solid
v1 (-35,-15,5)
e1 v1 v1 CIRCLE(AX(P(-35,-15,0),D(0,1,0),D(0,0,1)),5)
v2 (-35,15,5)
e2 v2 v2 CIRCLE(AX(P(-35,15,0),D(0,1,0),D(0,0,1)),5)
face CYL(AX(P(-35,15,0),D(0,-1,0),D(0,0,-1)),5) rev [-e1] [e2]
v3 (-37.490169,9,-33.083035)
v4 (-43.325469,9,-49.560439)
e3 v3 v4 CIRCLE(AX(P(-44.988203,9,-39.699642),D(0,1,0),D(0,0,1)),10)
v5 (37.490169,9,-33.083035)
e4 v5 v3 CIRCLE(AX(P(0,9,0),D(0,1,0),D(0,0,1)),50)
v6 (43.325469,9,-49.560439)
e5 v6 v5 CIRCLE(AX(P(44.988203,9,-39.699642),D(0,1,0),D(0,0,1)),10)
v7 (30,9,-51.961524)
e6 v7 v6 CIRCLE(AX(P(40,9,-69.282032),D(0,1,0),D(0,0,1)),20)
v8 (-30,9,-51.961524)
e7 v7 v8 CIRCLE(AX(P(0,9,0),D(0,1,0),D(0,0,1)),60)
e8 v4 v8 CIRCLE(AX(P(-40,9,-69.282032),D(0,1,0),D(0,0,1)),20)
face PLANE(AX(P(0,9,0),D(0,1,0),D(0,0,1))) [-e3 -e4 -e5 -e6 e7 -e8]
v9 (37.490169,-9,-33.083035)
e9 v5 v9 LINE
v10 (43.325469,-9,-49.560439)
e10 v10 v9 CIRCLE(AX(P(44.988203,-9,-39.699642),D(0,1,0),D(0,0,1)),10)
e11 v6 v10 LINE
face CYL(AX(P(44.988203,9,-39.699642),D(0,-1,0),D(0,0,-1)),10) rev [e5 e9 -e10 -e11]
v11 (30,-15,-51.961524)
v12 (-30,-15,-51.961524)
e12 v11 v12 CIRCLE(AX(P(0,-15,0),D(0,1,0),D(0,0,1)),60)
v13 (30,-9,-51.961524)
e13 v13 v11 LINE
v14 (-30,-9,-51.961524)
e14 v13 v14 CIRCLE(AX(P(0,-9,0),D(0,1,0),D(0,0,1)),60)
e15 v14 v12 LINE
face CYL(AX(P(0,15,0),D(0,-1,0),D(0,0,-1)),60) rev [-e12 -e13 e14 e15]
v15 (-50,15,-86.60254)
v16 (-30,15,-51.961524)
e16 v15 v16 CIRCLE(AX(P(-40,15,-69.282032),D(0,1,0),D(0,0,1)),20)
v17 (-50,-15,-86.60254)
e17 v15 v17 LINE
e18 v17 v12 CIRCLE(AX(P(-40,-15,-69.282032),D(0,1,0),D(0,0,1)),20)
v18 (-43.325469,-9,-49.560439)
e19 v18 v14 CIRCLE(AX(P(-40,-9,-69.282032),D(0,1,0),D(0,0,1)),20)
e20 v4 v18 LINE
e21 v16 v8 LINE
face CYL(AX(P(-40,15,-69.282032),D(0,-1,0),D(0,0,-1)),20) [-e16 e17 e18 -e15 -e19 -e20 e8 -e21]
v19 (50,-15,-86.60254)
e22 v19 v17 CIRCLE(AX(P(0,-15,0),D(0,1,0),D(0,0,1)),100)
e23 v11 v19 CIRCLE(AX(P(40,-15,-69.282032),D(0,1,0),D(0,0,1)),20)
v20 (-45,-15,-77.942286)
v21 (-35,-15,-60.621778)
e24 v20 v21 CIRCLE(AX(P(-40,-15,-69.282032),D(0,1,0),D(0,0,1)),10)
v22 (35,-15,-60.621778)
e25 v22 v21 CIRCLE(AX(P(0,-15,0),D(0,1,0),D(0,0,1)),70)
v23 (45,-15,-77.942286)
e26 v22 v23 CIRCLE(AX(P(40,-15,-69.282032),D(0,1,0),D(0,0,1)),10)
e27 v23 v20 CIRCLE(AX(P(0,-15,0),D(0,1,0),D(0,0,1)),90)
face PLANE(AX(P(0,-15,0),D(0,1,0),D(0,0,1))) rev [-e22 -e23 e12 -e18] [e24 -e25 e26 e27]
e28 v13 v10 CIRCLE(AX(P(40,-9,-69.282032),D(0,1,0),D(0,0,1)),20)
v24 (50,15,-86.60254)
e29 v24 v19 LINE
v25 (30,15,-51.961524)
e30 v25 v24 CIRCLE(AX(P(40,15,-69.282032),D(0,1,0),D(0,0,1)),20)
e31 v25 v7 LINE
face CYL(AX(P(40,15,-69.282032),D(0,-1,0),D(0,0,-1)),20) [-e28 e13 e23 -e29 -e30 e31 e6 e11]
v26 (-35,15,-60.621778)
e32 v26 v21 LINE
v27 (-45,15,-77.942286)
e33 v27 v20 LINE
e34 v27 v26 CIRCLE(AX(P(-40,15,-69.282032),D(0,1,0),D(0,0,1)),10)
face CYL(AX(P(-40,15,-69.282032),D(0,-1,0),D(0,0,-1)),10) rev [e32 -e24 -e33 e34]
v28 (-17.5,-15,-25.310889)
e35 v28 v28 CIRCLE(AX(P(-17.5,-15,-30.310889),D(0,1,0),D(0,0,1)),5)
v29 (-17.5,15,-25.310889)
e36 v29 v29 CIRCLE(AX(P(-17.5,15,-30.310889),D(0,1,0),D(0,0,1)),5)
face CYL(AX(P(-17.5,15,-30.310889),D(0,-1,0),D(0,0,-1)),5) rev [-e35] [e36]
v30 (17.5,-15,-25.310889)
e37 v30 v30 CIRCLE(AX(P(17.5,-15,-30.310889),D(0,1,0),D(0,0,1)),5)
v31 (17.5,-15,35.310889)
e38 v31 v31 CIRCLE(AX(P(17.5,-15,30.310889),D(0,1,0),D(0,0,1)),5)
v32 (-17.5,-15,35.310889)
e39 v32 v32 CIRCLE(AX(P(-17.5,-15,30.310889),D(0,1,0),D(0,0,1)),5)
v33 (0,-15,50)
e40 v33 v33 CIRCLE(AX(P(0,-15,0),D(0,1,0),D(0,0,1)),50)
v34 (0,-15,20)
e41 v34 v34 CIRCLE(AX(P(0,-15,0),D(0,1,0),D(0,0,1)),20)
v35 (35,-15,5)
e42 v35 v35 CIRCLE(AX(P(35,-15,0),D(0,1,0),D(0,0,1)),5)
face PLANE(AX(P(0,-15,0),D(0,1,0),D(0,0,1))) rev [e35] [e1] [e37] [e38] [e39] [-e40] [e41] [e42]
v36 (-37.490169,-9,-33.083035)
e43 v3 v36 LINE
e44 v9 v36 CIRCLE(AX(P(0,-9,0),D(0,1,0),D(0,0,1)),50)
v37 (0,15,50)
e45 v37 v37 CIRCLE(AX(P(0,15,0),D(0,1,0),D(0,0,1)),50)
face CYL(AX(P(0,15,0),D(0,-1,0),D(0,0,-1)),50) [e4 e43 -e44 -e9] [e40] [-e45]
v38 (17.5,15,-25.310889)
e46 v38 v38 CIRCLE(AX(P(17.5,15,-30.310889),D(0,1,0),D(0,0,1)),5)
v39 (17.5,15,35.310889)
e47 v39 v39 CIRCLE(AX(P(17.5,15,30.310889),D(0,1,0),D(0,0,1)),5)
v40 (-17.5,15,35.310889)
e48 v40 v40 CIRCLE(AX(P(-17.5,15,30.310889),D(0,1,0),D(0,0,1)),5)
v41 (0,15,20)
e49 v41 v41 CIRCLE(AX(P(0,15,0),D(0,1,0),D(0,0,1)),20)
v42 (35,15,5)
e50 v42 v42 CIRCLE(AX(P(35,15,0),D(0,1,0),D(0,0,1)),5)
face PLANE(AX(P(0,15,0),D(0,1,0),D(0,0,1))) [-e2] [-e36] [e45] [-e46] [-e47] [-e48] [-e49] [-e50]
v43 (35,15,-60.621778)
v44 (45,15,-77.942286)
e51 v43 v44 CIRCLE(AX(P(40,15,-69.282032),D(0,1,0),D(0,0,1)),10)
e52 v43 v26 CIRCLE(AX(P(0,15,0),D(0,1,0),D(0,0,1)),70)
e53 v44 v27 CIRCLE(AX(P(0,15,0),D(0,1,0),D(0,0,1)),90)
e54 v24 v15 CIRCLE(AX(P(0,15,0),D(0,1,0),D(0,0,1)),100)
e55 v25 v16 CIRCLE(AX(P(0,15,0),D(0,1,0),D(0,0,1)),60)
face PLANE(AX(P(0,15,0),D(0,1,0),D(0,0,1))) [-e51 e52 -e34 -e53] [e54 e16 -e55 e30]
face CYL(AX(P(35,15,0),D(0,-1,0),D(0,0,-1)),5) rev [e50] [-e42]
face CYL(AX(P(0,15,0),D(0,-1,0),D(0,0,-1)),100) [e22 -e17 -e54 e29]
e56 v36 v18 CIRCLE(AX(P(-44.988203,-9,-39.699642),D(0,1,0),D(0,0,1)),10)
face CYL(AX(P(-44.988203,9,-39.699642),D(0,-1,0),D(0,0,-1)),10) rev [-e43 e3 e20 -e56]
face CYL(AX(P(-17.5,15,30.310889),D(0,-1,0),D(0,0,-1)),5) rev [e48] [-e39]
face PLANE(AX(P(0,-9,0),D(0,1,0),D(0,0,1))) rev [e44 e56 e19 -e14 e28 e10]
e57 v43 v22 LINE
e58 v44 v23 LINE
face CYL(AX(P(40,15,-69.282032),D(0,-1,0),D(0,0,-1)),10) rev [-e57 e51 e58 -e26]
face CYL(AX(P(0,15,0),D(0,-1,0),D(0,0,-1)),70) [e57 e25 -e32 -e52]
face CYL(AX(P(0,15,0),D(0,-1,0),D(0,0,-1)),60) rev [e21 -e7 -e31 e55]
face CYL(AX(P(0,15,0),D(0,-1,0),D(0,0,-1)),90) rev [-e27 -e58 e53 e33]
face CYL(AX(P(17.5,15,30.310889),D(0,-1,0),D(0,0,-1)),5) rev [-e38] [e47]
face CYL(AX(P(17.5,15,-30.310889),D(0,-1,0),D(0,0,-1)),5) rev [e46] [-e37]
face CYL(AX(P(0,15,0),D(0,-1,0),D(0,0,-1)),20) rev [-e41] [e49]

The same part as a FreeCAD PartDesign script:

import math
import FreeCAD as App
import Part
import Sketcher

V = App.Vector

doc = App.newDocument("Part")
body = doc.addObject("PartDesign::Body", "Body")

# Sketch on XZ plane
sketch1 = doc.addObject("Sketcher::SketchObject", "Sketch")
body.addObject(sketch1)
sketch1.AttachmentSupport = (doc.XZ_Plane, [""])
sketch1.MapMode = "FlatFace"
sketch1.addGeometry(Part.ArcOfCircle(Part.Circle(V(0, 0, 0), V(0, 0, 1), 60), math.radians(-120), math.radians(-60)), False)
sketch1.addGeometry(Part.ArcOfCircle(Part.Circle(V(40, -69, 0), V(0, 0, 1), 20), math.radians(-60), math.radians(120)), False)
sketch1.addGeometry(Part.ArcOfCircle(Part.Circle(V(0, 0, 0), V(0, 0, 1), 100), math.radians(-120), math.radians(-60)), False)
sketch1.addGeometry(Part.ArcOfCircle(Part.Circle(V(-40, -69, 0), V(0, 0, 1), 20), math.radians(60), math.radians(240)), False)
sketch1.addGeometry(Part.ArcOfCircle(Part.Circle(V(0, 0, 0), V(0, 0, 1), 90), math.radians(-120), math.radians(-60)), False)
sketch1.addGeometry(Part.ArcOfCircle(Part.Circle(V(40, -69, 0), V(0, 0, 1), 10), math.radians(-60), math.radians(120)), False)
sketch1.addGeometry(Part.ArcOfCircle(Part.Circle(V(0, 0, 0), V(0, 0, 1), 70), math.radians(-120), math.radians(-60)), False)
sketch1.addGeometry(Part.ArcOfCircle(Part.Circle(V(-40, -69, 0), V(0, 0, 1), 10), math.radians(60), math.radians(240)), False)
sketch1.addConstraint(Sketcher.Constraint("Tangent", 0, 2, 1, 2))
sketch1.addConstraint(Sketcher.Constraint("Tangent", 1, 1, 2, 2))
sketch1.addConstraint(Sketcher.Constraint("Tangent", 2, 1, 3, 2))
sketch1.addConstraint(Sketcher.Constraint("Tangent", 3, 1, 0, 1))
sketch1.addConstraint(Sketcher.Constraint("Tangent", 4, 2, 5, 1))
sketch1.addConstraint(Sketcher.Constraint("Tangent", 5, 2, 6, 2))
sketch1.addConstraint(Sketcher.Constraint("Tangent", 6, 1, 7, 1))
sketch1.addConstraint(Sketcher.Constraint("Tangent", 7, 2, 4, 1))
sketch1.addConstraint(Sketcher.Constraint("Coincident", 0, 3, -1, 1))
sketch1.addConstraint(Sketcher.Constraint("Coincident", 2, 3, -1, 1))
sketch1.addConstraint(Sketcher.Constraint("Coincident", 4, 3, -1, 1))
sketch1.addConstraint(Sketcher.Constraint("Coincident", 6, 3, -1, 1))
sketch1.addConstraint(Sketcher.Constraint("Coincident", 5, 3, 1, 3))
sketch1.addConstraint(Sketcher.Constraint("Horizontal", 1, 3, 3, 3))
sketch1.addConstraint(Sketcher.Constraint("Horizontal", 5, 3, 7, 3))
sketch1.addConstraint(Sketcher.Constraint("Radius", 0, 60.0))
sketch1.addConstraint(Sketcher.Constraint("Radius", 1, 20.0))
sketch1.addConstraint(Sketcher.Constraint("Radius", 4, 90.0))
sketch1.addConstraint(Sketcher.Constraint("DistanceX", -1, 1, 1, 3, 40.0))
pad1 = doc.addObject("PartDesign::Pad", "Pad")
body.addObject(pad1)
pad1.Profile = sketch1
pad1.Length = 30
pad1.Midplane = True
body2 = doc.addObject("PartDesign::Body", "Body001")

# Sketch on XZ plane
sketch2 = doc.addObject("Sketcher::SketchObject", "Sketch001")
body2.addObject(sketch2)
sketch2.AttachmentSupport = (doc.getObject("XZ_Plane001"), [""])
sketch2.MapMode = "FlatFace"
sketch2.addGeometry(Part.Circle(V(0, 0, 0), V(0, 0, 1), 50), False)
sketch2.addGeometry(Part.Circle(V(-18, -30, 0), V(0, 0, 1), 5), False)
sketch2.addGeometry(Part.Circle(V(-35, 0, 0), V(0, 0, 1), 5), False)
sketch2.addGeometry(Part.Circle(V(-18, 30, 0), V(0, 0, 1), 5), False)
sketch2.addGeometry(Part.Circle(V(18, -30, 0), V(0, 0, 1), 5), False)
sketch2.addGeometry(Part.Circle(V(35, 0, 0), V(0, 0, 1), 5), False)
sketch2.addGeometry(Part.Circle(V(0, 0, 0), V(0, 0, 1), 20), False)
sketch2.addGeometry(Part.Circle(V(18, 30, 0), V(0, 0, 1), 5), False)
sketch2.addConstraint(Sketcher.Constraint("Coincident", 0, 3, -1, 1))
sketch2.addConstraint(Sketcher.Constraint("Coincident", 6, 3, -1, 1))
sketch2.addConstraint(Sketcher.Constraint("Equal", 1, 2))
sketch2.addConstraint(Sketcher.Constraint("Equal", 2, 3))
sketch2.addConstraint(Sketcher.Constraint("Equal", 3, 4))
sketch2.addConstraint(Sketcher.Constraint("Equal", 4, 5))
sketch2.addConstraint(Sketcher.Constraint("Equal", 5, 7))
sketch2.addConstraint(Sketcher.Constraint("Symmetric", 3, 3, 4, 3, -1, 1))
sketch2.addConstraint(Sketcher.Constraint("Symmetric", 2, 3, 5, 3, -1, 1))
sketch2.addConstraint(Sketcher.Constraint("Symmetric", 1, 3, 7, 3, -1, 1))
sketch2.addConstraint(Sketcher.Constraint("Symmetric", 1, 3, 4, 3, -2))
sketch2.addConstraint(Sketcher.Constraint("PointOnObject", 2, 3, -1))
sketch2.addConstraint(Sketcher.Constraint("Diameter", 0, 100.0))
sketch2.addConstraint(Sketcher.Constraint("Diameter", 1, 10.0))
sketch2.addConstraint(Sketcher.Constraint("Diameter", 6, 40.0))
sketch2.addConstraint(Sketcher.Constraint("DistanceX", 2, 3, -1, 1, 35.0))
sketch2.addConstraint(Sketcher.Constraint("DistanceX", 1, 3, 4, 3, 35.0))
sketch2.addConstraint(Sketcher.Constraint("DistanceY", 1, 3, -1, 1, 30.310889))
pad2 = doc.addObject("PartDesign::Pad", "Pad001")
body2.addObject(pad2)
pad2.Profile = sketch2
pad2.Length = 30
pad2.Midplane = True
body.AllowCompound = True
doc.recompute()

boolean = doc.addObject("PartDesign::Boolean", "Boolean")
body.addObject(boolean)
boolean.Type = "Fuse"
boolean.addObjects([body2])

# Sketch on XZ plane
sketch3 = doc.addObject("Sketcher::SketchObject", "Sketch002")
body.addObject(sketch3)
sketch3.AttachmentSupport = (doc.XZ_Plane, [""])
sketch3.MapMode = "FlatFace"
sketch3.addGeometry(Part.ArcOfCircle(Part.Circle(V(0, 0, 0), V(0, 0, 1), 50), math.radians(-139), math.radians(-41)), False)
sketch3.addGeometry(Part.ArcOfCircle(Part.Circle(V(45, -40, 0), V(0, 0, 1), 10), math.radians(139), math.radians(260)), False)
sketch3.addGeometry(Part.ArcOfCircle(Part.Circle(V(40, -69, 0), V(0, 0, 1), 20), math.radians(80), math.radians(120)), False)
sketch3.addGeometry(Part.ArcOfCircle(Part.Circle(V(0, 0, 0), V(0, 0, 1), 60), math.radians(-120), math.radians(-60)), False)
sketch3.addGeometry(Part.ArcOfCircle(Part.Circle(V(-40, -69, 0), V(0, 0, 1), 20), math.radians(60), math.radians(100)), False)
sketch3.addGeometry(Part.ArcOfCircle(Part.Circle(V(-45, -40, 0), V(0, 0, 1), 10), math.radians(-80), math.radians(41)), False)
sketch3.addConstraint(Sketcher.Constraint("Tangent", 0, 2, 1, 1))
sketch3.addConstraint(Sketcher.Constraint("Tangent", 1, 2, 2, 1))
sketch3.addConstraint(Sketcher.Constraint("Tangent", 2, 2, 3, 2))
sketch3.addConstraint(Sketcher.Constraint("Tangent", 3, 1, 4, 1))
sketch3.addConstraint(Sketcher.Constraint("Tangent", 4, 2, 5, 1))
sketch3.addConstraint(Sketcher.Constraint("Tangent", 5, 2, 0, 1))
sketch3.addConstraint(Sketcher.Constraint("Coincident", 0, 3, -1, 1))
sketch3.addConstraint(Sketcher.Constraint("Coincident", 3, 3, -1, 1))
sketch3.addConstraint(Sketcher.Constraint("Equal", 2, 4))
sketch3.addConstraint(Sketcher.Constraint("Equal", 1, 5))
sketch3.addConstraint(Sketcher.Constraint("Horizontal", 2, 3, 4, 3))
sketch3.addConstraint(Sketcher.Constraint("Radius", 0, 50.0))
sketch3.addConstraint(Sketcher.Constraint("Radius", 1, 10.0))
sketch3.addConstraint(Sketcher.Constraint("Radius", 2, 20.0))
sketch3.addConstraint(Sketcher.Constraint("Radius", 3, 60.0))
sketch3.addConstraint(Sketcher.Constraint("DistanceX", -1, 1, 2, 3, 40.0))
pad3 = doc.addObject("PartDesign::Pad", "Pad002")
body.addObject(pad3)
pad3.Profile = sketch3
pad3.Length = 18
pad3.Midplane = True

doc.recompute()
